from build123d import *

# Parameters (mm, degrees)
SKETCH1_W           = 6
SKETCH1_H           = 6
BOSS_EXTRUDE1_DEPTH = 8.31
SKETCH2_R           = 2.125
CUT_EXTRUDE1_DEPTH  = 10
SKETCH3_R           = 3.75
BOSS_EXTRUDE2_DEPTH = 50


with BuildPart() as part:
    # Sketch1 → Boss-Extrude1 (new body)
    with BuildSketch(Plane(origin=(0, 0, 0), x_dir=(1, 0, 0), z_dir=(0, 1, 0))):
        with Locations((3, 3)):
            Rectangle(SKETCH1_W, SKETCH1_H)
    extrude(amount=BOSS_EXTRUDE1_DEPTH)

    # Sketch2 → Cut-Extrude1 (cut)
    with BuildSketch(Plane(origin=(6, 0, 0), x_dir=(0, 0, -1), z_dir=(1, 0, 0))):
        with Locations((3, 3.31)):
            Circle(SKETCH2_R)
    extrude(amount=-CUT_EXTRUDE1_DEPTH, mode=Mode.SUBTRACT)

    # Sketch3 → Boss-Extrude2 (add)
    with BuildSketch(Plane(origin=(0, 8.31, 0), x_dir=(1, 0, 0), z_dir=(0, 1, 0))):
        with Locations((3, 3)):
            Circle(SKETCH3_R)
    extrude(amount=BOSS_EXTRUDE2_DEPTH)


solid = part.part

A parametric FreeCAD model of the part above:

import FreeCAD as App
import Part
import Sketcher

V = App.Vector
Q = App.Units.Quantity

doc = App.newDocument("Part")
params = doc.addObject("Spreadsheet::Sheet", "Params")
for row, (alias, value) in enumerate([
    ("sketch1_width", "6 mm"),
    ("pad1_length", "8.31 mm"),
    ("sketch2_diameter", "4.25 mm"),
    ("pocket1_length", "10 mm"),
    ("sketch3_diameter", "7.5 mm"),
    ("pad2_length", "50 mm"),
], start=1):
    params.set(f"A{row}", alias)
    params.set(f"B{row}", "=" + value)
    params.setAlias(f"B{row}", alias)

body = doc.addObject("PartDesign::Body", "Body")

# Sketch on XZ plane
sketch1 = doc.addObject("Sketcher::SketchObject", "Sketch")
body.addObject(sketch1)
sketch1.AttachmentSupport = (doc.XZ_Plane, [""])
sketch1.MapMode = "FlatFace"
sketch1.addGeometry([
    Part.LineSegment(V(0, -6, 0), V(0, 0, 0)),
    Part.LineSegment(V(0, 0, 0), V(6, 0, 0)),
    Part.LineSegment(V(6, 0, 0), V(6, -6, 0)),
    Part.LineSegment(V(6, -6, 0), V(0, -6, 0)),
], False)
sketch1.addConstraint([
    Sketcher.Constraint("Coincident", 0, 2, 1, 1),
    Sketcher.Constraint("Coincident", 1, 2, 2, 1),
    Sketcher.Constraint("Coincident", 2, 2, 3, 1),
    Sketcher.Constraint("Coincident", 3, 2, 0, 1),
    Sketcher.Constraint("Vertical", 0),
    Sketcher.Constraint("Horizontal", 1),
    Sketcher.Constraint("Vertical", 2),
    Sketcher.Constraint("Horizontal", 3),
    Sketcher.Constraint("Coincident", 0, 2, -1, 1),
    Sketcher.Constraint("Equal", 3, 0),
    Sketcher.Constraint("DistanceX", 1, 1, 1, 2, Q("6 mm")),
])
sketch1.setExpression("Constraints[10]", "Params.sketch1_width")
pad1 = doc.addObject("PartDesign::Pad", "Pad")
body.addObject(pad1)
pad1.Profile = sketch1
pad1.setExpression("Length", "Params.pad1_length")
pad1.Reversed = True

# Sketch on YZ plane
sketch2 = doc.addObject("Sketcher::SketchObject", "Sketch001")
body.addObject(sketch2)
sketch2.AttachmentSupport = (doc.YZ_Plane, [""])
sketch2.MapMode = "FlatFace"
sketch2.AttachmentOffset = App.Placement(V(0, 0, 6), App.Rotation())
sketch2.addGeometry(Part.Circle(V(3.3, -3, 0), V(0, 0, 1), 2.1), False)
sketch2.addConstraint([
    Sketcher.Constraint("Diameter", 0, Q("4.25 mm")),
    Sketcher.Constraint("DistanceY", 0, 3, -1, 1, Q("3 mm")),
    Sketcher.Constraint("DistanceX", -1, 1, 0, 3, Q("3.31 mm")),
])
sketch2.setExpression("Constraints[0]", "Params.sketch2_diameter")
pocket1 = doc.addObject("PartDesign::Pocket", "Pocket")
body.addObject(pocket1)
pocket1.Profile = sketch2
pocket1.setExpression("Length", "Params.pocket1_length")

# Sketch on XZ plane
sketch3 = doc.addObject("Sketcher::SketchObject", "Sketch002")
body.addObject(sketch3)
sketch3.AttachmentSupport = (doc.XZ_Plane, [""])
sketch3.MapMode = "FlatFace"
sketch3.AttachmentOffset = App.Placement(V(0, 0, -8.31), App.Rotation())
sketch3.addGeometry(Part.Circle(V(3, -3, 0), V(0, 0, 1), 3.8), False)
sketch3.addConstraint([
    Sketcher.Constraint("Diameter", 0, Q("7.5 mm")),
    Sketcher.Constraint("DistanceX", -1, 1, 0, 3, Q("3 mm")),
    Sketcher.Constraint("DistanceY", 0, 3, -1, 1, Q("3 mm")),
])
sketch3.setExpression("Constraints[0]", "Params.sketch3_diameter")
pad2 = doc.addObject("PartDesign::Pad", "Pad001")
body.addObject(pad2)
pad2.Profile = sketch3
pad2.setExpression("Length", "Params.pad2_length")
pad2.Reversed = True

doc.recompute()
